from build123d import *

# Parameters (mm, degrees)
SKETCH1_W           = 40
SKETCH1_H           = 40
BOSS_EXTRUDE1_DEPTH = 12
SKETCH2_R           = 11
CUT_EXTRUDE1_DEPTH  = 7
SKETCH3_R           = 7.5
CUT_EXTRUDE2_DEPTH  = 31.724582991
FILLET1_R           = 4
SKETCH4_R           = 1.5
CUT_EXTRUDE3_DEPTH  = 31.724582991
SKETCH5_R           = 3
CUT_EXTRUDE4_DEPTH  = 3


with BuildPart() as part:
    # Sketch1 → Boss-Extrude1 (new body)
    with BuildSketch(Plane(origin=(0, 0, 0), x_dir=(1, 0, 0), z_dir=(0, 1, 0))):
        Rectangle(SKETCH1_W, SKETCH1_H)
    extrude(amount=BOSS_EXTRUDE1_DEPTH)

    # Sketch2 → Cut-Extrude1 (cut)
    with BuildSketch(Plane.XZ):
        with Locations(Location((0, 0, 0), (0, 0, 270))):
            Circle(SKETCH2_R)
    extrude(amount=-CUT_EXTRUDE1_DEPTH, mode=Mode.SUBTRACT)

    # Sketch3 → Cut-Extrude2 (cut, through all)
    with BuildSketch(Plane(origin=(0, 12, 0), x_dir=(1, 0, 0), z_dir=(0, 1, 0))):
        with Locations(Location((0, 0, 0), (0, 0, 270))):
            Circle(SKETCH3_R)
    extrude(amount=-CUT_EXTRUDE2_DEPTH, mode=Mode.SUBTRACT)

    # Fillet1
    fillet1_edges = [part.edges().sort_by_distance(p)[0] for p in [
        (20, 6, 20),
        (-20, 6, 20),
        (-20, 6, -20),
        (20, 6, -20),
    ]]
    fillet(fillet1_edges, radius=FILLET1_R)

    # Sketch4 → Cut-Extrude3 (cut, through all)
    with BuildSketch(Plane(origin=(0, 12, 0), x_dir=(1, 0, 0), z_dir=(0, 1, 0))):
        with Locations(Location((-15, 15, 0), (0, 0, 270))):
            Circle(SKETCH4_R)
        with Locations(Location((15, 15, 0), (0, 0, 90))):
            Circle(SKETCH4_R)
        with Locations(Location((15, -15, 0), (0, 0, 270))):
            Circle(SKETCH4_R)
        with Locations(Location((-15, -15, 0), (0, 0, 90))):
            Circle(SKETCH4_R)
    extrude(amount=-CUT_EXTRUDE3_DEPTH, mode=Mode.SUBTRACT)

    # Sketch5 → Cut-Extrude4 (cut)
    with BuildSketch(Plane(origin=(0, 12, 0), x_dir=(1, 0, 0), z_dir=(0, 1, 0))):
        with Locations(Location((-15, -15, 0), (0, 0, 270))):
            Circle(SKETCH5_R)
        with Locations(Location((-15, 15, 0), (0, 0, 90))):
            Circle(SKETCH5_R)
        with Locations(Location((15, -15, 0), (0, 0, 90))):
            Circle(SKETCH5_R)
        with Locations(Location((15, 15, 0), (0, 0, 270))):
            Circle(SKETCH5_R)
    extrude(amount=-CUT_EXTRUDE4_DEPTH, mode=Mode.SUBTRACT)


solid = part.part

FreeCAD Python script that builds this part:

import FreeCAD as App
import Part
import Sketcher


def edges_at(feature, points):
    """Names of the edges that pass closest to the given points."""
    edges = feature.Shape.Edges
    near = lambda p: min(range(len(edges)), key=lambda i: edges[i].distToShape(Part.Vertex(*p))[0])
    return sorted({f"Edge{near(p) + 1}" for p in points})


def add_polygon(sketch, points):
    """Adds a closed chain of lines whose ends are joined by coincident constraints."""
    first, n = sketch.GeometryCount, len(points)
    for a, b in zip(points, points[1:] + points[:1]):
        sketch.addGeometry(Part.LineSegment(App.Vector(*a, 0), App.Vector(*b, 0)), False)
    for i in range(n):
        sketch.addConstraint(Sketcher.Constraint("Coincident", first + i, 2, first + (i + 1) % n, 1))

doc = App.newDocument("Part")
body = doc.addObject("PartDesign::Body", "Body")

sketch1 = body.newObject("Sketcher::SketchObject", "Sketch")
sketch1.AttachmentSupport = (doc.getObject("XZ_Plane"), [""])
sketch1.MapMode = "FlatFace"
add_polygon(sketch1, [(-20, -20), (-20, 20), (20, 20), (20, -20)])
sketch1.addConstraint(Sketcher.Constraint("Vertical", 0))
sketch1.addConstraint(Sketcher.Constraint("Horizontal", 1))
sketch1.addConstraint(Sketcher.Constraint("Vertical", 2))
sketch1.addConstraint(Sketcher.Constraint("Horizontal", 3))
sketch1.addConstraint(Sketcher.Constraint("Symmetric", 0, 2, 2, 2, -1, 1))
sketch1.addConstraint(Sketcher.Constraint("Equal", 3, 0))
sketch1.addConstraint(Sketcher.Constraint("DistanceX", 1, 1, 1, 2, 40.0))
pad1 = body.newObject("PartDesign::Pad", "Pad")
pad1.Profile = sketch1
pad1.Length = 12
pad1.Reversed = True

sketch2 = body.newObject("Sketcher::SketchObject", "Sketch001")
sketch2.AttachmentSupport = (doc.getObject("XZ_Plane"), [""])
sketch2.MapMode = "FlatFace"
sketch2.addGeometry(Part.Circle(App.Vector(0, 0, 0), App.Vector(0, 0, 1), 11), False)
sketch2.addConstraint(Sketcher.Constraint("Coincident", 0, 3, -1, 1))
sketch2.addConstraint(Sketcher.Constraint("Diameter", 0, 22.0))
pocket1 = body.newObject("PartDesign::Pocket", "Pocket")
pocket1.Profile = sketch2
pocket1.Length = 7

sketch3 = body.newObject("Sketcher::SketchObject", "Sketch002")
sketch3.AttachmentSupport = (doc.getObject("XZ_Plane"), [""])
sketch3.MapMode = "FlatFace"
sketch3.AttachmentOffset = App.Placement(App.Vector(0, 0, -12), App.Rotation())
sketch3.addGeometry(Part.Circle(App.Vector(0, 0, 0), App.Vector(0, 0, 1), 8), False)
sketch3.addConstraint(Sketcher.Constraint("Coincident", 0, 3, -1, 1))
sketch3.addConstraint(Sketcher.Constraint("Diameter", 0, 15.0))
pocket2 = body.newObject("PartDesign::Pocket", "Pocket001")
pocket2.Profile = sketch3
pocket2.Type = "ThroughAll"
pocket2.Reversed = True
doc.recompute()

fillet = body.newObject("PartDesign::Fillet", "Fillet")
fillet.Base = (pocket2, edges_at(pocket2, [
    (20, 6, 20),
    (-20, 6, 20),
    (-20, 6, -20),
    (20, 6, -20),
]))
fillet.Radius = 4

sketch4 = body.newObject("Sketcher::SketchObject", "Sketch003")
sketch4.AttachmentSupport = (doc.getObject("XZ_Plane"), [""])
sketch4.MapMode = "FlatFace"
sketch4.AttachmentOffset = App.Placement(App.Vector(0, 0, -12), App.Rotation())
sketch4.addGeometry(Part.Circle(App.Vector(-15, -15, 0), App.Vector(0, 0, 1), 1.5), False)
sketch4.addGeometry(Part.Circle(App.Vector(15, -15, 0), App.Vector(0, 0, 1), 1.5), False)
sketch4.addGeometry(Part.Circle(App.Vector(15, 15, 0), App.Vector(0, 0, 1), 1.5), False)
sketch4.addGeometry(Part.Circle(App.Vector(-15, 15, 0), App.Vector(0, 0, 1), 1.5), False)
sketch4.addConstraint(Sketcher.Constraint("Equal", 0, 1))
sketch4.addConstraint(Sketcher.Constraint("Equal", 1, 2))
sketch4.addConstraint(Sketcher.Constraint("Equal", 2, 3))
sketch4.addConstraint(Sketcher.Constraint("Symmetric", 0, 3, 2, 3, -1, 1))
sketch4.addConstraint(Sketcher.Constraint("Symmetric", 1, 3, 3, 3, -1, 1))
sketch4.addConstraint(Sketcher.Constraint("Symmetric", 0, 3, 1, 3, -2))
sketch4.addConstraint(Sketcher.Constraint("Diameter", 0, 3.0))
sketch4.addConstraint(Sketcher.Constraint("DistanceX", 0, 3, -1, 1, 15.0))
sketch4.addConstraint(Sketcher.Constraint("DistanceY", 0, 3, -1, 1, 15.0))
pocket3 = body.newObject("PartDesign::Pocket", "Pocket002")
pocket3.Profile = sketch4
pocket3.Type = "ThroughAll"
pocket3.Reversed = True

sketch5 = body.newObject("Sketcher::SketchObject", "Sketch004")
sketch5.AttachmentSupport = (doc.getObject("XZ_Plane"), [""])
sketch5.MapMode = "FlatFace"
sketch5.AttachmentOffset = App.Placement(App.Vector(0, 0, -12), App.Rotation())
sketch5.addGeometry(Part.Circle(App.Vector(-15, 15, 0), App.Vector(0, 0, 1), 3), False)
sketch5.addGeometry(Part.Circle(App.Vector(-15, -15, 0), App.Vector(0, 0, 1), 3), False)
sketch5.addGeometry(Part.Circle(App.Vector(15, 15, 0), App.Vector(0, 0, 1), 3), False)
sketch5.addGeometry(Part.Circle(App.Vector(15, -15, 0), App.Vector(0, 0, 1), 3), False)
sketch5.addConstraint(Sketcher.Constraint("Equal", 0, 1))
sketch5.addConstraint(Sketcher.Constraint("Equal", 1, 2))
sketch5.addConstraint(Sketcher.Constraint("Equal", 2, 3))
sketch5.addConstraint(Sketcher.Constraint("Symmetric", 1, 3, 2, 3, -1, 1))
sketch5.addConstraint(Sketcher.Constraint("Symmetric", 0, 3, 3, 3, -1, 1))
sketch5.addConstraint(Sketcher.Constraint("Symmetric", 0, 3, 2, 3, -2))
sketch5.addConstraint(Sketcher.Constraint("Diameter", 0, 6.0))
sketch5.addConstraint(Sketcher.Constraint("DistanceX", 0, 3, -1, 1, 15.0))
sketch5.addConstraint(Sketcher.Constraint("DistanceY", -1, 1, 0, 3, 15.0))
pocket4 = body.newObject("PartDesign::Pocket", "Pocket003")
pocket4.Profile = sketch5
pocket4.Length = 3
pocket4.Reversed = True

doc.recompute()
